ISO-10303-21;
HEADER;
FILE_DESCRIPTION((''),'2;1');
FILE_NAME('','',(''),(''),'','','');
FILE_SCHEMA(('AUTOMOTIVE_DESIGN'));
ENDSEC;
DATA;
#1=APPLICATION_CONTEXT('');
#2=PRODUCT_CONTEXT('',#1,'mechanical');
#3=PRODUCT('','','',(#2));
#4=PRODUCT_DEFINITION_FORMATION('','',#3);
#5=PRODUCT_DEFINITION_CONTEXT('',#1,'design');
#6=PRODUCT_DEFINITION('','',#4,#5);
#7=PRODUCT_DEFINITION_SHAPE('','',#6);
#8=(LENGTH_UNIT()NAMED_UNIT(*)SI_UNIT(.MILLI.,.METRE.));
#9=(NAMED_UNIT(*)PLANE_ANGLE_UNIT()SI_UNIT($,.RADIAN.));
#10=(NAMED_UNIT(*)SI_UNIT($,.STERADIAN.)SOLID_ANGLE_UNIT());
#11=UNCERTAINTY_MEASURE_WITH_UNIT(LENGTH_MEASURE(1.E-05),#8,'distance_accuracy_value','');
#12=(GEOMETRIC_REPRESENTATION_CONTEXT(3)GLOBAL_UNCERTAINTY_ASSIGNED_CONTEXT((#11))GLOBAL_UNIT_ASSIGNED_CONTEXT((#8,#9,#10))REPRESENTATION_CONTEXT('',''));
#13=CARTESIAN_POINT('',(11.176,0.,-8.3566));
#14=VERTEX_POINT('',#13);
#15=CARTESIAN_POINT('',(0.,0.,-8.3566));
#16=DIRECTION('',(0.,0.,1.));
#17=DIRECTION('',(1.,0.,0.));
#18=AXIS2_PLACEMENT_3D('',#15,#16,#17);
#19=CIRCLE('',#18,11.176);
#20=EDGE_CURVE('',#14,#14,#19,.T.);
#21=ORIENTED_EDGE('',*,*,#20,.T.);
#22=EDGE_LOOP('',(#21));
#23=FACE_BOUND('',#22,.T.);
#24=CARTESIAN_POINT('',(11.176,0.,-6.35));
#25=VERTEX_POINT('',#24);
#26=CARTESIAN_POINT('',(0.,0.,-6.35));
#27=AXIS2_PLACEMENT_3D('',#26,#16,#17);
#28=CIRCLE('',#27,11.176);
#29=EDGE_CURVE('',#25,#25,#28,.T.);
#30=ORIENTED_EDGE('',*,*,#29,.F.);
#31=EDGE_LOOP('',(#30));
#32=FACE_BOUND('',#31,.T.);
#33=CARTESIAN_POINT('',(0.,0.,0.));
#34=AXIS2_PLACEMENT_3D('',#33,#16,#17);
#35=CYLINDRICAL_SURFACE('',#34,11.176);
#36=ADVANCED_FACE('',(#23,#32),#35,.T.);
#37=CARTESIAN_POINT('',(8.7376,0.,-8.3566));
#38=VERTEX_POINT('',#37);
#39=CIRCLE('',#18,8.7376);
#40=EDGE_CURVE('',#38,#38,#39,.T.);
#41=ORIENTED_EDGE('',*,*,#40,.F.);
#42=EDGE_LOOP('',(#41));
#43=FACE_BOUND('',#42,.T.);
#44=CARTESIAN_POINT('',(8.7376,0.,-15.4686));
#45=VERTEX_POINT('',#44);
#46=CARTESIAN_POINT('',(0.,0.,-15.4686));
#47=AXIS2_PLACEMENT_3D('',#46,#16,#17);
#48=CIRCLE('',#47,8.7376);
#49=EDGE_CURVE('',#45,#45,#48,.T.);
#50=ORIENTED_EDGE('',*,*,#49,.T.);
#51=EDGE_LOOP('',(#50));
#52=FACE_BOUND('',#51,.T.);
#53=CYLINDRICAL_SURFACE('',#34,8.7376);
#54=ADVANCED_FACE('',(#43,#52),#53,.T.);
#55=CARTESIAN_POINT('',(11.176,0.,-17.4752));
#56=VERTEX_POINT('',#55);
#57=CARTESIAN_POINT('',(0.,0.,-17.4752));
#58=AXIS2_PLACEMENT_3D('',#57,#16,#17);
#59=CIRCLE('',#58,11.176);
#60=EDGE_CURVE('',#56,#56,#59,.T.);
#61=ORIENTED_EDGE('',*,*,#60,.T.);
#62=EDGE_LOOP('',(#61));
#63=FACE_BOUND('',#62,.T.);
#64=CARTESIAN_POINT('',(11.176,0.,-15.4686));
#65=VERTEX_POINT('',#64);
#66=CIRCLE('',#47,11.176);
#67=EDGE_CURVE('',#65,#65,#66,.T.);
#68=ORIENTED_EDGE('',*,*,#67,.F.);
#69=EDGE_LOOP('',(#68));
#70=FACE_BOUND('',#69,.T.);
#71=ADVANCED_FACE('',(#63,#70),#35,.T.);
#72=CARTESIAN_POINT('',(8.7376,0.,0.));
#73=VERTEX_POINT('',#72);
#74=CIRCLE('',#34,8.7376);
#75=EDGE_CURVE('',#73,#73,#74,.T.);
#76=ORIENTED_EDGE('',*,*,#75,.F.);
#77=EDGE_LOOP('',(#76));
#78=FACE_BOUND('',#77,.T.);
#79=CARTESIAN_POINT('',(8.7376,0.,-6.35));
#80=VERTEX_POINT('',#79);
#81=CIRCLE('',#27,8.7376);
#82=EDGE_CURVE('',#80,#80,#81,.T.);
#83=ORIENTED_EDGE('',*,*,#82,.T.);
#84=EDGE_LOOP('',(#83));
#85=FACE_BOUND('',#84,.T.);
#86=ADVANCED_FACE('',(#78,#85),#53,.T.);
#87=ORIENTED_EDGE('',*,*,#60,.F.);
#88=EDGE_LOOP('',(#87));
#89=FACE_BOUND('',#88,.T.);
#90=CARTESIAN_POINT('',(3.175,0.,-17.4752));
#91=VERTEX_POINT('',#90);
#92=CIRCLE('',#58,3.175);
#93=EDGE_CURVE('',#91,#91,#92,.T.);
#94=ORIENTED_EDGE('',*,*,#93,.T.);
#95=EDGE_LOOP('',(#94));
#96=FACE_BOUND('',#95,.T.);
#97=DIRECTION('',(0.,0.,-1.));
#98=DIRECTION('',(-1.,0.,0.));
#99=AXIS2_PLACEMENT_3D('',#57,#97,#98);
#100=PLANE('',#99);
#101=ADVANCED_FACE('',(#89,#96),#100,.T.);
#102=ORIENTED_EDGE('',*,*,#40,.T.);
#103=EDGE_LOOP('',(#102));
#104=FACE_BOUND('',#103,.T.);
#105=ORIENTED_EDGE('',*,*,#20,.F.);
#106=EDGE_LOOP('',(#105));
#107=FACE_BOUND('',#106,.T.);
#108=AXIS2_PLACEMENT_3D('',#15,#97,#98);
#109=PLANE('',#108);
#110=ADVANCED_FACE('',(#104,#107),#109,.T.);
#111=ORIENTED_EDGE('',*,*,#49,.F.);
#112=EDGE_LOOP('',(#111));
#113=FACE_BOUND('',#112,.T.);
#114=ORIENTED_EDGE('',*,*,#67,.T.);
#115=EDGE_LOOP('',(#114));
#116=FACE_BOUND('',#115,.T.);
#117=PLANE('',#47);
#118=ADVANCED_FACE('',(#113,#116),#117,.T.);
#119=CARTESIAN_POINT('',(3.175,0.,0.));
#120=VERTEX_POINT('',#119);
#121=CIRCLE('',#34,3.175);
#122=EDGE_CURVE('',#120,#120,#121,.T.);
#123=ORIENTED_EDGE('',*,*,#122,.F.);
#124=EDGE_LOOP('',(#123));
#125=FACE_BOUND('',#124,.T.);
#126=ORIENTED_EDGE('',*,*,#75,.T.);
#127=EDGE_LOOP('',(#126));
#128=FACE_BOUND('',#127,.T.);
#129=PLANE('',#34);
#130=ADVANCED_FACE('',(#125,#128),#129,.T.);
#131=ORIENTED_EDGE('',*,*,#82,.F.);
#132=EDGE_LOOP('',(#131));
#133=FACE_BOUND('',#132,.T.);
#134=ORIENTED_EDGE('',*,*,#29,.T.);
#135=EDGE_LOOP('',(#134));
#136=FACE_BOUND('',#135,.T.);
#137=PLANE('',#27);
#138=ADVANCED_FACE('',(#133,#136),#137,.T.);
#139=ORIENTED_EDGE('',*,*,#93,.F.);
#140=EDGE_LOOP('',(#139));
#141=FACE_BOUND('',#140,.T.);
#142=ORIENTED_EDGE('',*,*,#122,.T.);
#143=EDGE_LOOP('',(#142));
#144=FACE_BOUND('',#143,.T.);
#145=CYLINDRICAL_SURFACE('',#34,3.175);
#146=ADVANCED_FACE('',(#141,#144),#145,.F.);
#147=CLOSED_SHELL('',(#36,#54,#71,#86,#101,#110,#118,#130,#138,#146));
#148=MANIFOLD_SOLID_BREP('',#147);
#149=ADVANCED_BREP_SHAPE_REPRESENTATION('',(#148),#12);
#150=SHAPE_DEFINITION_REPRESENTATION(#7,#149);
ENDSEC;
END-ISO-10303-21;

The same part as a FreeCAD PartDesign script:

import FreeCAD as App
import Part
import Sketcher

V = App.Vector
Q = App.Units.Quantity


def add_polygon(sketch, points):
    """Adds a closed chain of lines whose ends are joined by coincident constraints."""
    first, n = sketch.GeometryCount, len(points)
    for a, b in zip(points, points[1:] + points[:1]):
        sketch.addGeometry(Part.LineSegment(App.Vector(*a, 0), App.Vector(*b, 0)), False)
    for i in range(n):
        sketch.addConstraint(Sketcher.Constraint("Coincident", first + i, 2, first + (i + 1) % n, 1))

doc = App.newDocument("Part")
body = doc.addObject("PartDesign::Body", "Body")

# Sketch on YZ plane
sketch1 = doc.addObject("Sketcher::SketchObject", "Sketch")
body.addObject(sketch1)
sketch1.AttachmentSupport = (doc.YZ_Plane, [""])
sketch1.MapMode = "FlatFace"
add_polygon(sketch1, [(8.7, 0), (3.2, 0), (3.2, -17.5), (11.2, -17.5), (11.2, -15.5), (8.7, -15.5), (8.7, -8.4), (11.2, -8.4), (11.2, -6.3), (8.7, -6.3)])  # lines 0-9
sketch1.addConstraint([
    Sketcher.Constraint("Horizontal", 0),
    Sketcher.Constraint("Vertical", 1),
    Sketcher.Constraint("Horizontal", 2),
    Sketcher.Constraint("Vertical", 3),
    Sketcher.Constraint("Horizontal", 4),
    Sketcher.Constraint("Vertical", 5),
    Sketcher.Constraint("Horizontal", 6),
    Sketcher.Constraint("Vertical", 7),
    Sketcher.Constraint("Horizontal", 8),
    Sketcher.Constraint("Vertical", 9),
    Sketcher.Constraint("PointOnObject", 0, 2, -1),
    Sketcher.Constraint("Vertical", 3, 2, 6, 2),
    Sketcher.Constraint("Vertical", 5, 2, 8, 2),
    Sketcher.Constraint("Equal", 3, 7),
    Sketcher.Constraint("DistanceY", 5, 1, 5, 2, Q("0.28 in")),
    Sketcher.Constraint("DistanceY", 9, 1, 9, 2, Q("0.25 in")),
    Sketcher.Constraint("DistanceX", 0, 2, 0, 1, Q("0.219 in")),
    Sketcher.Constraint("DistanceX", 2, 1, 2, 2, Q("0.315 in")),
    Sketcher.Constraint("DistanceY", 1, 2, 1, 1, Q("0.688 in")),
    Sketcher.Constraint("DistanceX", -1, 1, 2, 2, Q("0.44 in")),
])
revolution = doc.addObject("PartDesign::Revolution", "Revolution")
body.addObject(revolution)
revolution.Profile = sketch1
revolution.ReferenceAxis = (sketch1, ["V_Axis"])
revolution.Angle = 360

doc.recompute()
